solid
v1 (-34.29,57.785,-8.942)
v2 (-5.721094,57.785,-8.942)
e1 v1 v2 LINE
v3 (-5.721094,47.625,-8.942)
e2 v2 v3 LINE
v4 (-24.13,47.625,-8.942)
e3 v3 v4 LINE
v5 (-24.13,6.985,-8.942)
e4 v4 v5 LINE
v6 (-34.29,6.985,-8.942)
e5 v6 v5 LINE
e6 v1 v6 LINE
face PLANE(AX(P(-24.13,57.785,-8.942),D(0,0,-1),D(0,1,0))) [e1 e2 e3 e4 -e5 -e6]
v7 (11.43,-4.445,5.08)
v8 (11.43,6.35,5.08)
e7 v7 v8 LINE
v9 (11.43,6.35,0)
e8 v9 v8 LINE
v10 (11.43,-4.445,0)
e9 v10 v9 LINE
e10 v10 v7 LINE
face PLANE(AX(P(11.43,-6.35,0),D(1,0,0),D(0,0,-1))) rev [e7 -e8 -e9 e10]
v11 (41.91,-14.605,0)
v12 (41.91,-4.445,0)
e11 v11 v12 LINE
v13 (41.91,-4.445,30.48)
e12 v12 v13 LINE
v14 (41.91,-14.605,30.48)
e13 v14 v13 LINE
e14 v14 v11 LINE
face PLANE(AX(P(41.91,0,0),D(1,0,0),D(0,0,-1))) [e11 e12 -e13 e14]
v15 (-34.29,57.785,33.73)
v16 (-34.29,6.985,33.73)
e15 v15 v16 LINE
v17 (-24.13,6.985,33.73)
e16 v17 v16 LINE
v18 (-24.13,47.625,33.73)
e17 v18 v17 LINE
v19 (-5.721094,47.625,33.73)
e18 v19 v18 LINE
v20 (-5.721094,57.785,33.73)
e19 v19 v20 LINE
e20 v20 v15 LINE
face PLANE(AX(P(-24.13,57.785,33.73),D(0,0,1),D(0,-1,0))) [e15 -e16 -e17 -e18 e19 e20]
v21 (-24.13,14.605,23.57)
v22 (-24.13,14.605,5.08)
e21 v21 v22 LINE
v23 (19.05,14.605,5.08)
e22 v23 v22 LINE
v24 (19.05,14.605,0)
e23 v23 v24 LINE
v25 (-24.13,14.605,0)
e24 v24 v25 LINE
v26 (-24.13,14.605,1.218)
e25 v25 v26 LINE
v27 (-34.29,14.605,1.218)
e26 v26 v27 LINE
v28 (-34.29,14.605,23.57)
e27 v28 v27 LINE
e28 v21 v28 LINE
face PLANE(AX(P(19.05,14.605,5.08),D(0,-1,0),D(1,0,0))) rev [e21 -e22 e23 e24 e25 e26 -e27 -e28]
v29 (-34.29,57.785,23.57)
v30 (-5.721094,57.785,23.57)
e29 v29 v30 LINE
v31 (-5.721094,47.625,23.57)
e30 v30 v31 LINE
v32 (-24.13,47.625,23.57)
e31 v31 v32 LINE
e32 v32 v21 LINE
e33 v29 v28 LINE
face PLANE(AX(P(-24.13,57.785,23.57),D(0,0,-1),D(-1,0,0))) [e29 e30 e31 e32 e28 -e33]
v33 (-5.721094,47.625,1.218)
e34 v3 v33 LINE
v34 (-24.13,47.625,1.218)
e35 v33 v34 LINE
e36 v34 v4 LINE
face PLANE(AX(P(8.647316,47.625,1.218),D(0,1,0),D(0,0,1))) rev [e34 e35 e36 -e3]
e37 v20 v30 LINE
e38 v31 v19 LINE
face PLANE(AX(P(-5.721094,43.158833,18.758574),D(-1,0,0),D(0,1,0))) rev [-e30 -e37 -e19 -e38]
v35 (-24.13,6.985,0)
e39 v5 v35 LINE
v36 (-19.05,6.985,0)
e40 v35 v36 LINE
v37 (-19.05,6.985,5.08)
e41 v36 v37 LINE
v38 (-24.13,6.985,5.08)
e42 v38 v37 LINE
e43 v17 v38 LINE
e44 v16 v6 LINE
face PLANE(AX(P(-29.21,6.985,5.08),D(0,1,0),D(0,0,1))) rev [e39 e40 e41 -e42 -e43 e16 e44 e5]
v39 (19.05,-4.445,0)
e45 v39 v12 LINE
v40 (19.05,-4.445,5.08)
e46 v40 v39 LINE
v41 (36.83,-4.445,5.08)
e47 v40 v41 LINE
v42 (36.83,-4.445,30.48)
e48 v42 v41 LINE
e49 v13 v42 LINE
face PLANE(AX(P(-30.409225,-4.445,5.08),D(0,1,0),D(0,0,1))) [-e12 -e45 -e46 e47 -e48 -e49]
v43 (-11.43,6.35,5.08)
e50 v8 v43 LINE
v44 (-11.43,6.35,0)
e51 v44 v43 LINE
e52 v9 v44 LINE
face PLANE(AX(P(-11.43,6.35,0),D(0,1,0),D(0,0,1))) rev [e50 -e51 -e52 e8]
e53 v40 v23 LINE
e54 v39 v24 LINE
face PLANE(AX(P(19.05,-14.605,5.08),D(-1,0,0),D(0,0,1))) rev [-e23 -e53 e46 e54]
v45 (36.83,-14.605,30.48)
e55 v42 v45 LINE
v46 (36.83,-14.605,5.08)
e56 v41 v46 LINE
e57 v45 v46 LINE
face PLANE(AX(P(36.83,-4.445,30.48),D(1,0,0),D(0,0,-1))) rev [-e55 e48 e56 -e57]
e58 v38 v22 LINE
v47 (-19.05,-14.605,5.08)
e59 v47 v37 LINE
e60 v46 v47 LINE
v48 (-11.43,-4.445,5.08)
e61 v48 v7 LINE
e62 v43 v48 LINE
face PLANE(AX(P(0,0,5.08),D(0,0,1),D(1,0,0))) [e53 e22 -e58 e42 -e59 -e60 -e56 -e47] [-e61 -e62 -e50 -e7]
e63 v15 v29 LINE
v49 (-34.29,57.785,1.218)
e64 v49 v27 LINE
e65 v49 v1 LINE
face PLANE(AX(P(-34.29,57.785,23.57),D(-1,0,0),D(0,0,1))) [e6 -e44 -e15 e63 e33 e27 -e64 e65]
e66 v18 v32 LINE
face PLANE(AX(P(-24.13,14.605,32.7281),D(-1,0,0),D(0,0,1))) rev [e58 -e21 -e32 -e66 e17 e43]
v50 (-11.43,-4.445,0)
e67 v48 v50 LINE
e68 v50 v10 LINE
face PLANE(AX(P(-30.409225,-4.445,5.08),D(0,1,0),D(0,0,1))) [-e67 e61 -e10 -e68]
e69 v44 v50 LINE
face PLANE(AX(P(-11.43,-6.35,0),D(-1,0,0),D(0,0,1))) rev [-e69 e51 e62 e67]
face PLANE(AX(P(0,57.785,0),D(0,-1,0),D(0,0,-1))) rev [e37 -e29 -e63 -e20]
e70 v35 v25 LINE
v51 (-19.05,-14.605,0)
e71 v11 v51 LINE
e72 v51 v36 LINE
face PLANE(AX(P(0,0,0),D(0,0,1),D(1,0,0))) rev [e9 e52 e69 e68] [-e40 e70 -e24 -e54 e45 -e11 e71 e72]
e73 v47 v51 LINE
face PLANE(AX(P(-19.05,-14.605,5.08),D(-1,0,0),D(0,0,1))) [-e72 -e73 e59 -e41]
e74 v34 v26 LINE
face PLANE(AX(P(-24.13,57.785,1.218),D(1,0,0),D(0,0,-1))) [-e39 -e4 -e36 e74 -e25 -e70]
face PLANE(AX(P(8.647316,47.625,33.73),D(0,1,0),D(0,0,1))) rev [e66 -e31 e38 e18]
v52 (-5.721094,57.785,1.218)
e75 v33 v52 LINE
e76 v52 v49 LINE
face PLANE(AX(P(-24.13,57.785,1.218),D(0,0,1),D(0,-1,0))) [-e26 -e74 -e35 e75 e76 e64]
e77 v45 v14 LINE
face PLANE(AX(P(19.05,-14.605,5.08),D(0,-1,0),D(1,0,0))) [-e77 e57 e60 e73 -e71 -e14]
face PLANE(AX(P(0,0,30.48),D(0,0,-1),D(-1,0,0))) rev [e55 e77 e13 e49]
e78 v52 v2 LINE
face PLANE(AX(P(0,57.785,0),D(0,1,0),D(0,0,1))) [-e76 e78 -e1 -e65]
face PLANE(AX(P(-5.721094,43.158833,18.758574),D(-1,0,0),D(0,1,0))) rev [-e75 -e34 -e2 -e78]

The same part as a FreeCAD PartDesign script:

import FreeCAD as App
import Part
import Sketcher
Q = App.Units.Quantity

doc = App.newDocument("Part")
body = doc.addObject("PartDesign::Body", "Body")

# Sketch on XY plane
sketch1 = doc.addObject("Sketcher::SketchObject", "Sketch")
body.addObject(sketch1)
sketch1.AttachmentSupport = (doc.XY_Plane, [""])
sketch1.MapMode = "FlatFace"
sketch1.addGeometry([
    Part.LineSegment(App.Vector(-19.05, 14.605, 0), App.Vector(-19.05, -14.605, 0)),
    Part.LineSegment(App.Vector(-19.05, -14.605, 0), App.Vector(19.05, -14.605, 0)),
    Part.LineSegment(App.Vector(19.05, -14.605, 0), App.Vector(19.05, 14.605, 0)),
    Part.LineSegment(App.Vector(19.05, 14.605, 0), App.Vector(-19.05, 14.605, 0)),
], False)
sketch1.addConstraint([
    Sketcher.Constraint("Coincident", 0, 2, 1, 1),
    Sketcher.Constraint("Coincident", 1, 2, 2, 1),
    Sketcher.Constraint("Coincident", 2, 2, 3, 1),
    Sketcher.Constraint("Coincident", 3, 2, 0, 1),
    Sketcher.Constraint("Vertical", 0),
    Sketcher.Constraint("Horizontal", 1),
    Sketcher.Constraint("Vertical", 2),
    Sketcher.Constraint("Horizontal", 3),
    Sketcher.Constraint("Symmetric", 0, 2, 2, 2, -1, 1),
    Sketcher.Constraint("DistanceX", 1, 1, 1, 2, Q("1.5 in")),
    Sketcher.Constraint("DistanceY", 0, 2, 0, 1, Q("1.15 in")),
])
pad1 = doc.addObject("PartDesign::Pad", "Pad")
body.addObject(pad1)
pad1.Profile = sketch1
pad1.Length = Q("0.2 in")

# Sketch on XY plane
sketch2 = doc.addObject("Sketcher::SketchObject", "Sketch001")
body.addObject(sketch2)
sketch2.AttachmentSupport = (doc.XY_Plane, [""])
sketch2.MapMode = "FlatFace"
sketch2.AttachmentOffset = App.Placement(App.Vector(0, 0, 0.2 * 25.4), App.Rotation())
sketch2.addGeometry([
    Part.LineSegment(App.Vector(-11.43, 6.35, 0), App.Vector(-11.43, -6.35, 0)),
    Part.LineSegment(App.Vector(-11.43, -6.35, 0), App.Vector(11.43, -6.35, 0)),
    Part.LineSegment(App.Vector(11.43, -6.35, 0), App.Vector(11.43, 6.35, 0)),
    Part.LineSegment(App.Vector(11.43, 6.35, 0), App.Vector(-11.43, 6.35, 0)),
], False)
sketch2.addConstraint([
    Sketcher.Constraint("Coincident", 0, 2, 1, 1),
    Sketcher.Constraint("Coincident", 1, 2, 2, 1),
    Sketcher.Constraint("Coincident", 2, 2, 3, 1),
    Sketcher.Constraint("Coincident", 3, 2, 0, 1),
    Sketcher.Constraint("Vertical", 0),
    Sketcher.Constraint("Horizontal", 1),
    Sketcher.Constraint("Vertical", 2),
    Sketcher.Constraint("Horizontal", 3),
    Sketcher.Constraint("Symmetric", 0, 2, 2, 2, -1, 1),
    Sketcher.Constraint("DistanceX", 1, 1, 1, 2, Q("0.9 in")),
    Sketcher.Constraint("DistanceY", 0, 2, 0, 1, Q("0.5 in")),
])
pocket1 = doc.addObject("PartDesign::Pocket", "Pocket")
body.addObject(pocket1)
pocket1.Profile = sketch2
pocket1.Length = Q("0.2 in")

# Sketch on YZ plane
sketch3 = doc.addObject("Sketcher::SketchObject", "Sketch002")
body.addObject(sketch3)
sketch3.AttachmentSupport = (doc.YZ_Plane, [""])
sketch3.MapMode = "FlatFace"
sketch3.AttachmentOffset = App.Placement(App.Vector(0, 0, -0.75 * 25.4), App.Rotation())
sketch3.addGeometry([
    Part.LineSegment(App.Vector(14.605, 0, 0), App.Vector(6.985, 0, 0)),
    Part.LineSegment(App.Vector(6.985, 0, 0), App.Vector(6.985, 5.08, 0)),
    Part.LineSegment(App.Vector(6.985, 5.08, 0), App.Vector(14.605, 5.08, 0)),
    Part.LineSegment(App.Vector(14.605, 5.08, 0), App.Vector(14.605, 0, 0)),
], False)
sketch3.addConstraint([
    Sketcher.Constraint("Coincident", 0, 2, 1, 1),
    Sketcher.Constraint("Coincident", 1, 2, 2, 1),
    Sketcher.Constraint("Coincident", 2, 2, 3, 1),
    Sketcher.Constraint("Coincident", 3, 2, 0, 1),
    Sketcher.Constraint("Horizontal", 0),
    Sketcher.Constraint("Vertical", 1),
    Sketcher.Constraint("Horizontal", 2),
    Sketcher.Constraint("Vertical", 3),
    Sketcher.Constraint("PointOnObject", 0, 2, -1),
    Sketcher.Constraint("DistanceX", 0, 2, 0, 1, Q("0.3 in")),
    Sketcher.Constraint("DistanceY", 1, 1, 1, 2, Q("0.2 in")),
    Sketcher.Constraint("DistanceX", -1, 1, 0, 2, Q("0.275 in")),
])
pad2 = doc.addObject("PartDesign::Pad", "Pad001")
body.addObject(pad2)
pad2.Profile = sketch3
pad2.Length = Q("0.4 in")
pad2.Reversed = True

# Sketch on XY plane
sketch4 = doc.addObject("Sketcher::SketchObject", "Sketch003")
body.addObject(sketch4)
sketch4.AttachmentSupport = (doc.XY_Plane, [""])
sketch4.MapMode = "FlatFace"
sketch4.AttachmentOffset = App.Placement(App.Vector(0, 0, 0.2 * 25.4), App.Rotation())
sketch4.addGeometry([
    Part.LineSegment(App.Vector(-29.21, 14.605, 0), App.Vector(-29.21, 6.985, 0)),
    Part.LineSegment(App.Vector(-29.21, 6.985, 0), App.Vector(-24.13, 6.985, 0)),
    Part.LineSegment(App.Vector(-24.13, 6.985, 0), App.Vector(-24.13, 14.605, 0)),
    Part.LineSegment(App.Vector(-24.13, 14.605, 0), App.Vector(-29.21, 14.605, 0)),
], False)
sketch4.addConstraint([
    Sketcher.Constraint("Coincident", 0, 2, 1, 1),
    Sketcher.Constraint("Coincident", 1, 2, 2, 1),
    Sketcher.Constraint("Coincident", 2, 2, 3, 1),
    Sketcher.Constraint("Coincident", 3, 2, 0, 1),
    Sketcher.Constraint("Vertical", 0),
    Sketcher.Constraint("Horizontal", 1),
    Sketcher.Constraint("Vertical", 2),
    Sketcher.Constraint("Horizontal", 3),
    Sketcher.Constraint("DistanceX", 1, 1, 1, 2, Q("0.2 in")),
    Sketcher.Constraint("DistanceY", 0, 2, 0, 1, Q("0.3 in")),
    Sketcher.Constraint("DistanceX", 0, 2, -1, 1, Q("1.15 in")),
    Sketcher.Constraint("DistanceY", -1, 1, 0, 2, Q("0.275 in")),
])
pad3 = doc.addObject("PartDesign::Pad", "Pad002")
body.addObject(pad3)
pad3.Profile = sketch4
pad3.Length = 18.49

# Sketch on XZ plane
sketch5 = doc.addObject("Sketcher::SketchObject", "Sketch004")
body.addObject(sketch5)
sketch5.AttachmentSupport = (doc.XZ_Plane, [""])
sketch5.MapMode = "FlatFace"
sketch5.AttachmentOffset = App.Placement(App.Vector(0, 0, -0.275 * 25.4), App.Rotation())
sketch5.addGeometry([
    Part.LineSegment(App.Vector(-34.29, 33.73, 0), App.Vector(-34.29, 23.57, 0)),  # 0
    Part.LineSegment(App.Vector(-34.29, 23.57, 0), App.Vector(-24.13, 23.57, 0)),  # 1
    Part.LineSegment(App.Vector(-24.13, 23.57, 0), App.Vector(-24.13, 33.73, 0)),  # 2
    Part.LineSegment(App.Vector(-24.13, 33.73, 0), App.Vector(-34.29, 33.73, 0)),  # 3
    Part.LineSegment(App.Vector(-34.29, 1.218, 0), App.Vector(-34.29, -8.942, 0)),  # 4
    Part.LineSegment(App.Vector(-34.29, -8.942, 0), App.Vector(-24.13, -8.942, 0)),  # 5
    Part.LineSegment(App.Vector(-24.13, -8.942, 0), App.Vector(-24.13, 1.218, 0)),  # 6
    Part.LineSegment(App.Vector(-24.13, 1.218, 0), App.Vector(-34.29, 1.218, 0)),  # 7
], False)
sketch5.addConstraint([
    Sketcher.Constraint("Coincident", 0, 2, 1, 1),
    Sketcher.Constraint("Coincident", 1, 2, 2, 1),
    Sketcher.Constraint("Coincident", 2, 2, 3, 1),
    Sketcher.Constraint("Coincident", 3, 2, 0, 1),
    Sketcher.Constraint("Coincident", 4, 2, 5, 1),
    Sketcher.Constraint("Coincident", 5, 2, 6, 1),
    Sketcher.Constraint("Coincident", 6, 2, 7, 1),
    Sketcher.Constraint("Coincident", 7, 2, 4, 1),
    Sketcher.Constraint("Vertical", 0),
    Sketcher.Constraint("Horizontal", 1),
    Sketcher.Constraint("Vertical", 2),
    Sketcher.Constraint("Horizontal", 3),
    Sketcher.Constraint("Vertical", 4),
    Sketcher.Constraint("Horizontal", 5),
    Sketcher.Constraint("Vertical", 6),
    Sketcher.Constraint("Horizontal", 7),
    Sketcher.Constraint("Vertical", 3, 2, 4, 2),
    Sketcher.Constraint("Vertical", 2, 2, 5, 2),
    Sketcher.Constraint("Equal", 7, 0),
    Sketcher.Constraint("Equal", 2, 4),
    Sketcher.Constraint("DistanceX", 1, 1, 1, 2, Q("0.4 in")),
    Sketcher.Constraint("DistanceX", 0, 2, -1, 1, Q("1.35 in")),
    Sketcher.Constraint("DistanceY", 4, 2, 0, 2, Q("1.28 in")),
    Sketcher.Constraint("DistanceY", -1, 1, 0, 2, Q("23.57 mm")),
])
pad4 = doc.addObject("PartDesign::Pad", "Pad003")
body.addObject(pad4)
pad4.Profile = sketch5
pad4.Length = Q("2 in")
pad4.Reversed = True

# Sketch on YZ plane
sketch6 = doc.addObject("Sketcher::SketchObject", "Sketch005")
body.addObject(sketch6)
sketch6.AttachmentSupport = (doc.YZ_Plane, [""])
sketch6.MapMode = "FlatFace"
sketch6.AttachmentOffset = App.Placement(App.Vector(0, 0, -0.95 * 25.4), App.Rotation())
sketch6.addGeometry([
    Part.LineSegment(App.Vector(57.785, 33.73, 0), App.Vector(47.625, 33.73, 0)),  # 0
    Part.LineSegment(App.Vector(47.625, 33.73, 0), App.Vector(47.625, 23.57, 0)),  # 1
    Part.LineSegment(App.Vector(47.625, 23.57, 0), App.Vector(57.785, 23.57, 0)),  # 2
    Part.LineSegment(App.Vector(57.785, 23.57, 0), App.Vector(57.785, 33.73, 0)),  # 3
    Part.LineSegment(App.Vector(57.785, 1.218, 0), App.Vector(47.625, 1.218, 0)),  # 4
    Part.LineSegment(App.Vector(47.625, 1.218, 0), App.Vector(47.625, -8.942, 0)),  # 5
    Part.LineSegment(App.Vector(47.625, -8.942, 0), App.Vector(57.785, -8.942, 0)),  # 6
    Part.LineSegment(App.Vector(57.785, -8.942, 0), App.Vector(57.785, 1.218, 0)),  # 7
], False)
sketch6.addConstraint([
    Sketcher.Constraint("Coincident", 0, 2, 1, 1),
    Sketcher.Constraint("Coincident", 1, 2, 2, 1),
    Sketcher.Constraint("Coincident", 2, 2, 3, 1),
    Sketcher.Constraint("Coincident", 3, 2, 0, 1),
    Sketcher.Constraint("Coincident", 4, 2, 5, 1),
    Sketcher.Constraint("Coincident", 5, 2, 6, 1),
    Sketcher.Constraint("Coincident", 6, 2, 7, 1),
    Sketcher.Constraint("Coincident", 7, 2, 4, 1),
    Sketcher.Constraint("Horizontal", 0),
    Sketcher.Constraint("Vertical", 1),
    Sketcher.Constraint("Horizontal", 2),
    Sketcher.Constraint("Vertical", 3),
    Sketcher.Constraint("Horizontal", 4),
    Sketcher.Constraint("Vertical", 5),
    Sketcher.Constraint("Horizontal", 6),
    Sketcher.Constraint("Vertical", 7),
    Sketcher.Constraint("Vertical", 1, 2, 4, 2),
    Sketcher.Constraint("Vertical", 3, 2, 6, 2),
    Sketcher.Constraint("Equal", 6, 1),
    Sketcher.Constraint("Equal", 3, 5),
    Sketcher.Constraint("DistanceX", 0, 2, 0, 1, Q("0.4 in")),
    Sketcher.Constraint("DistanceY", 4, 2, 1, 2, Q("0.88 in")),
    Sketcher.Constraint("DistanceX", -1, 1, 0, 2, Q("1.875 in")),
    Sketcher.Constraint("DistanceY", -1, 1, 0, 2, Q("33.73 mm")),
])
pad5 = doc.addObject("PartDesign::Pad", "Pad004")
body.addObject(pad5)
pad5.Profile = sketch6
pad5.Length = 18.408906

# Sketch on YZ plane
sketch7 = doc.addObject("Sketcher::SketchObject", "Sketch006")
body.addObject(sketch7)
sketch7.AttachmentSupport = (doc.YZ_Plane, [""])
sketch7.MapMode = "FlatFace"
sketch7.AttachmentOffset = App.Placement(App.Vector(0, 0, 0.75 * 25.4), App.Rotation())
sketch7.addGeometry([
    Part.LineSegment(App.Vector(-4.445, 5.08, 0), App.Vector(-14.605, 5.08, 0)),
    Part.LineSegment(App.Vector(-14.605, 5.08, 0), App.Vector(-14.605, 0, 0)),
    Part.LineSegment(App.Vector(-14.605, 0, 0), App.Vector(-4.445, 0, 0)),
    Part.LineSegment(App.Vector(-4.445, 0, 0), App.Vector(-4.445, 5.08, 0)),
], False)
sketch7.addConstraint([
    Sketcher.Constraint("Coincident", 0, 2, 1, 1),
    Sketcher.Constraint("Coincident", 1, 2, 2, 1),
    Sketcher.Constraint("Coincident", 2, 2, 3, 1),
    Sketcher.Constraint("Coincident", 3, 2, 0, 1),
    Sketcher.Constraint("Horizontal", 0),
    Sketcher.Constraint("Vertical", 1),
    Sketcher.Constraint("Horizontal", 2),
    Sketcher.Constraint("Vertical", 3),
    Sketcher.Constraint("PointOnObject", 1, 2, -1),
    Sketcher.Constraint("DistanceX", 0, 2, 0, 1, Q("0.4 in")),
    Sketcher.Constraint("DistanceY", 1, 2, 1, 1, Q("0.2 in")),
    Sketcher.Constraint("DistanceX", 0, 2, -1, 1, Q("0.575 in")),
])
pad6 = doc.addObject("PartDesign::Pad", "Pad005")
body.addObject(pad6)
pad6.Profile = sketch7
pad6.Length = Q("0.9 in")

# Sketch on YZ plane
sketch8 = doc.addObject("Sketcher::SketchObject", "Sketch007")
body.addObject(sketch8)
sketch8.AttachmentSupport = (doc.YZ_Plane, [""])
sketch8.MapMode = "FlatFace"
sketch8.AttachmentOffset = App.Placement(App.Vector(0, 0, 0.75 * 25.4), App.Rotation())
sketch8.addGeometry([
    Part.LineSegment(App.Vector(-4.445, 5.08, 0), App.Vector(-14.605, 5.08, 0)),
    Part.LineSegment(App.Vector(-14.605, 5.08, 0), App.Vector(-14.605, 0, 0)),
    Part.LineSegment(App.Vector(-14.605, 0, 0), App.Vector(-4.445, 0, 0)),
    Part.LineSegment(App.Vector(-4.445, 0, 0), App.Vector(-4.445, 5.08, 0)),
], False)
sketch8.addConstraint([
    Sketcher.Constraint("Coincident", 0, 2, 1, 1),
    Sketcher.Constraint("Coincident", 1, 2, 2, 1),
    Sketcher.Constraint("Coincident", 2, 2, 3, 1),
    Sketcher.Constraint("Coincident", 3, 2, 0, 1),
    Sketcher.Constraint("Horizontal", 0),
    Sketcher.Constraint("Vertical", 1),
    Sketcher.Constraint("Horizontal", 2),
    Sketcher.Constraint("Vertical", 3),
    Sketcher.Constraint("PointOnObject", 1, 2, -1),
    Sketcher.Constraint("DistanceX", 0, 2, 0, 1, Q("0.4 in")),
    Sketcher.Constraint("DistanceY", 1, 2, 1, 1, Q("0.2 in")),
    Sketcher.Constraint("DistanceX", 0, 2, -1, 1, Q("0.575 in")),
])
pad7 = doc.addObject("PartDesign::Pad", "Pad006")
body.addObject(pad7)
pad7.Profile = sketch8
pad7.Type = "UpToFirst"
pad7.Reversed = True

# Sketch on XY plane
sketch9 = doc.addObject("Sketcher::SketchObject", "Sketch008")
body.addObject(sketch9)
sketch9.AttachmentSupport = (doc.XY_Plane, [""])
sketch9.MapMode = "FlatFace"
sketch9.AttachmentOffset = App.Placement(App.Vector(0, 0, 0.2 * 25.4), App.Rotation())
sketch9.addGeometry([
    Part.LineSegment(App.Vector(36.83, -4.445, 0), App.Vector(36.83, -14.605, 0)),
    Part.LineSegment(App.Vector(36.83, -14.605, 0), App.Vector(41.91, -14.605, 0)),
    Part.LineSegment(App.Vector(41.91, -14.605, 0), App.Vector(41.91, -4.445, 0)),
    Part.LineSegment(App.Vector(41.91, -4.445, 0), App.Vector(36.83, -4.445, 0)),
], False)
sketch9.addConstraint([
    Sketcher.Constraint("Coincident", 0, 2, 1, 1),
    Sketcher.Constraint("Coincident", 1, 2, 2, 1),
    Sketcher.Constraint("Coincident", 2, 2, 3, 1),
    Sketcher.Constraint("Coincident", 3, 2, 0, 1),
    Sketcher.Constraint("Vertical", 0),
    Sketcher.Constraint("Horizontal", 1),
    Sketcher.Constraint("Vertical", 2),
    Sketcher.Constraint("Horizontal", 3),
    Sketcher.Constraint("DistanceX", 1, 1, 1, 2, Q("0.2 in")),
    Sketcher.Constraint("DistanceY", 0, 2, 0, 1, Q("0.4 in")),
    Sketcher.Constraint("DistanceX", -1, 1, 0, 2, Q("1.45 in")),
    Sketcher.Constraint("DistanceY", 0, 2, -1, 1, Q("0.575 in")),
])
pad8 = doc.addObject("PartDesign::Pad", "Pad007")
body.addObject(pad8)
pad8.Profile = sketch9
pad8.Length = Q("1 in")

# Sketch on YZ plane
sketch10 = doc.addObject("Sketcher::SketchObject", "Sketch009")
body.addObject(sketch10)
sketch10.AttachmentSupport = (doc.YZ_Plane, [""])
sketch10.MapMode = "FlatFace"
sketch10.AttachmentOffset = App.Placement(App.Vector(0, 0, -1.15 * 25.4), App.Rotation())
sketch10.addGeometry([
    Part.LineSegment(App.Vector(14.605, 1.218, 0), App.Vector(6.985, 1.218, 0)),
    Part.LineSegment(App.Vector(6.985, 1.218, 0), App.Vector(6.985, 23.57, 0)),
    Part.LineSegment(App.Vector(6.985, 23.57, 0), App.Vector(14.605, 23.57, 0)),
    Part.LineSegment(App.Vector(14.605, 23.57, 0), App.Vector(14.605, 1.218, 0)),
], False)
sketch10.addConstraint([
    Sketcher.Constraint("Coincident", 0, 2, 1, 1),
    Sketcher.Constraint("Coincident", 1, 2, 2, 1),
    Sketcher.Constraint("Coincident", 2, 2, 3, 1),
    Sketcher.Constraint("Coincident", 3, 2, 0, 1),
    Sketcher.Constraint("Horizontal", 0),
    Sketcher.Constraint("Vertical", 1),
    Sketcher.Constraint("Horizontal", 2),
    Sketcher.Constraint("Vertical", 3),
    Sketcher.Constraint("DistanceX", 0, 2, 0, 1, Q("0.3 in")),
    Sketcher.Constraint("DistanceY", 1, 1, 1, 2, Q("0.88 in")),
    Sketcher.Constraint("DistanceX", -1, 1, 0, 2, Q("0.275 in")),
    Sketcher.Constraint("DistanceY", -1, 1, 0, 2, Q("1.218 mm")),
])
pad9 = doc.addObject("PartDesign::Pad", "Pad008")
body.addObject(pad9)
pad9.Profile = sketch10
pad9.Length = Q("0.2 in")
pad9.Reversed = True

doc.recompute()
